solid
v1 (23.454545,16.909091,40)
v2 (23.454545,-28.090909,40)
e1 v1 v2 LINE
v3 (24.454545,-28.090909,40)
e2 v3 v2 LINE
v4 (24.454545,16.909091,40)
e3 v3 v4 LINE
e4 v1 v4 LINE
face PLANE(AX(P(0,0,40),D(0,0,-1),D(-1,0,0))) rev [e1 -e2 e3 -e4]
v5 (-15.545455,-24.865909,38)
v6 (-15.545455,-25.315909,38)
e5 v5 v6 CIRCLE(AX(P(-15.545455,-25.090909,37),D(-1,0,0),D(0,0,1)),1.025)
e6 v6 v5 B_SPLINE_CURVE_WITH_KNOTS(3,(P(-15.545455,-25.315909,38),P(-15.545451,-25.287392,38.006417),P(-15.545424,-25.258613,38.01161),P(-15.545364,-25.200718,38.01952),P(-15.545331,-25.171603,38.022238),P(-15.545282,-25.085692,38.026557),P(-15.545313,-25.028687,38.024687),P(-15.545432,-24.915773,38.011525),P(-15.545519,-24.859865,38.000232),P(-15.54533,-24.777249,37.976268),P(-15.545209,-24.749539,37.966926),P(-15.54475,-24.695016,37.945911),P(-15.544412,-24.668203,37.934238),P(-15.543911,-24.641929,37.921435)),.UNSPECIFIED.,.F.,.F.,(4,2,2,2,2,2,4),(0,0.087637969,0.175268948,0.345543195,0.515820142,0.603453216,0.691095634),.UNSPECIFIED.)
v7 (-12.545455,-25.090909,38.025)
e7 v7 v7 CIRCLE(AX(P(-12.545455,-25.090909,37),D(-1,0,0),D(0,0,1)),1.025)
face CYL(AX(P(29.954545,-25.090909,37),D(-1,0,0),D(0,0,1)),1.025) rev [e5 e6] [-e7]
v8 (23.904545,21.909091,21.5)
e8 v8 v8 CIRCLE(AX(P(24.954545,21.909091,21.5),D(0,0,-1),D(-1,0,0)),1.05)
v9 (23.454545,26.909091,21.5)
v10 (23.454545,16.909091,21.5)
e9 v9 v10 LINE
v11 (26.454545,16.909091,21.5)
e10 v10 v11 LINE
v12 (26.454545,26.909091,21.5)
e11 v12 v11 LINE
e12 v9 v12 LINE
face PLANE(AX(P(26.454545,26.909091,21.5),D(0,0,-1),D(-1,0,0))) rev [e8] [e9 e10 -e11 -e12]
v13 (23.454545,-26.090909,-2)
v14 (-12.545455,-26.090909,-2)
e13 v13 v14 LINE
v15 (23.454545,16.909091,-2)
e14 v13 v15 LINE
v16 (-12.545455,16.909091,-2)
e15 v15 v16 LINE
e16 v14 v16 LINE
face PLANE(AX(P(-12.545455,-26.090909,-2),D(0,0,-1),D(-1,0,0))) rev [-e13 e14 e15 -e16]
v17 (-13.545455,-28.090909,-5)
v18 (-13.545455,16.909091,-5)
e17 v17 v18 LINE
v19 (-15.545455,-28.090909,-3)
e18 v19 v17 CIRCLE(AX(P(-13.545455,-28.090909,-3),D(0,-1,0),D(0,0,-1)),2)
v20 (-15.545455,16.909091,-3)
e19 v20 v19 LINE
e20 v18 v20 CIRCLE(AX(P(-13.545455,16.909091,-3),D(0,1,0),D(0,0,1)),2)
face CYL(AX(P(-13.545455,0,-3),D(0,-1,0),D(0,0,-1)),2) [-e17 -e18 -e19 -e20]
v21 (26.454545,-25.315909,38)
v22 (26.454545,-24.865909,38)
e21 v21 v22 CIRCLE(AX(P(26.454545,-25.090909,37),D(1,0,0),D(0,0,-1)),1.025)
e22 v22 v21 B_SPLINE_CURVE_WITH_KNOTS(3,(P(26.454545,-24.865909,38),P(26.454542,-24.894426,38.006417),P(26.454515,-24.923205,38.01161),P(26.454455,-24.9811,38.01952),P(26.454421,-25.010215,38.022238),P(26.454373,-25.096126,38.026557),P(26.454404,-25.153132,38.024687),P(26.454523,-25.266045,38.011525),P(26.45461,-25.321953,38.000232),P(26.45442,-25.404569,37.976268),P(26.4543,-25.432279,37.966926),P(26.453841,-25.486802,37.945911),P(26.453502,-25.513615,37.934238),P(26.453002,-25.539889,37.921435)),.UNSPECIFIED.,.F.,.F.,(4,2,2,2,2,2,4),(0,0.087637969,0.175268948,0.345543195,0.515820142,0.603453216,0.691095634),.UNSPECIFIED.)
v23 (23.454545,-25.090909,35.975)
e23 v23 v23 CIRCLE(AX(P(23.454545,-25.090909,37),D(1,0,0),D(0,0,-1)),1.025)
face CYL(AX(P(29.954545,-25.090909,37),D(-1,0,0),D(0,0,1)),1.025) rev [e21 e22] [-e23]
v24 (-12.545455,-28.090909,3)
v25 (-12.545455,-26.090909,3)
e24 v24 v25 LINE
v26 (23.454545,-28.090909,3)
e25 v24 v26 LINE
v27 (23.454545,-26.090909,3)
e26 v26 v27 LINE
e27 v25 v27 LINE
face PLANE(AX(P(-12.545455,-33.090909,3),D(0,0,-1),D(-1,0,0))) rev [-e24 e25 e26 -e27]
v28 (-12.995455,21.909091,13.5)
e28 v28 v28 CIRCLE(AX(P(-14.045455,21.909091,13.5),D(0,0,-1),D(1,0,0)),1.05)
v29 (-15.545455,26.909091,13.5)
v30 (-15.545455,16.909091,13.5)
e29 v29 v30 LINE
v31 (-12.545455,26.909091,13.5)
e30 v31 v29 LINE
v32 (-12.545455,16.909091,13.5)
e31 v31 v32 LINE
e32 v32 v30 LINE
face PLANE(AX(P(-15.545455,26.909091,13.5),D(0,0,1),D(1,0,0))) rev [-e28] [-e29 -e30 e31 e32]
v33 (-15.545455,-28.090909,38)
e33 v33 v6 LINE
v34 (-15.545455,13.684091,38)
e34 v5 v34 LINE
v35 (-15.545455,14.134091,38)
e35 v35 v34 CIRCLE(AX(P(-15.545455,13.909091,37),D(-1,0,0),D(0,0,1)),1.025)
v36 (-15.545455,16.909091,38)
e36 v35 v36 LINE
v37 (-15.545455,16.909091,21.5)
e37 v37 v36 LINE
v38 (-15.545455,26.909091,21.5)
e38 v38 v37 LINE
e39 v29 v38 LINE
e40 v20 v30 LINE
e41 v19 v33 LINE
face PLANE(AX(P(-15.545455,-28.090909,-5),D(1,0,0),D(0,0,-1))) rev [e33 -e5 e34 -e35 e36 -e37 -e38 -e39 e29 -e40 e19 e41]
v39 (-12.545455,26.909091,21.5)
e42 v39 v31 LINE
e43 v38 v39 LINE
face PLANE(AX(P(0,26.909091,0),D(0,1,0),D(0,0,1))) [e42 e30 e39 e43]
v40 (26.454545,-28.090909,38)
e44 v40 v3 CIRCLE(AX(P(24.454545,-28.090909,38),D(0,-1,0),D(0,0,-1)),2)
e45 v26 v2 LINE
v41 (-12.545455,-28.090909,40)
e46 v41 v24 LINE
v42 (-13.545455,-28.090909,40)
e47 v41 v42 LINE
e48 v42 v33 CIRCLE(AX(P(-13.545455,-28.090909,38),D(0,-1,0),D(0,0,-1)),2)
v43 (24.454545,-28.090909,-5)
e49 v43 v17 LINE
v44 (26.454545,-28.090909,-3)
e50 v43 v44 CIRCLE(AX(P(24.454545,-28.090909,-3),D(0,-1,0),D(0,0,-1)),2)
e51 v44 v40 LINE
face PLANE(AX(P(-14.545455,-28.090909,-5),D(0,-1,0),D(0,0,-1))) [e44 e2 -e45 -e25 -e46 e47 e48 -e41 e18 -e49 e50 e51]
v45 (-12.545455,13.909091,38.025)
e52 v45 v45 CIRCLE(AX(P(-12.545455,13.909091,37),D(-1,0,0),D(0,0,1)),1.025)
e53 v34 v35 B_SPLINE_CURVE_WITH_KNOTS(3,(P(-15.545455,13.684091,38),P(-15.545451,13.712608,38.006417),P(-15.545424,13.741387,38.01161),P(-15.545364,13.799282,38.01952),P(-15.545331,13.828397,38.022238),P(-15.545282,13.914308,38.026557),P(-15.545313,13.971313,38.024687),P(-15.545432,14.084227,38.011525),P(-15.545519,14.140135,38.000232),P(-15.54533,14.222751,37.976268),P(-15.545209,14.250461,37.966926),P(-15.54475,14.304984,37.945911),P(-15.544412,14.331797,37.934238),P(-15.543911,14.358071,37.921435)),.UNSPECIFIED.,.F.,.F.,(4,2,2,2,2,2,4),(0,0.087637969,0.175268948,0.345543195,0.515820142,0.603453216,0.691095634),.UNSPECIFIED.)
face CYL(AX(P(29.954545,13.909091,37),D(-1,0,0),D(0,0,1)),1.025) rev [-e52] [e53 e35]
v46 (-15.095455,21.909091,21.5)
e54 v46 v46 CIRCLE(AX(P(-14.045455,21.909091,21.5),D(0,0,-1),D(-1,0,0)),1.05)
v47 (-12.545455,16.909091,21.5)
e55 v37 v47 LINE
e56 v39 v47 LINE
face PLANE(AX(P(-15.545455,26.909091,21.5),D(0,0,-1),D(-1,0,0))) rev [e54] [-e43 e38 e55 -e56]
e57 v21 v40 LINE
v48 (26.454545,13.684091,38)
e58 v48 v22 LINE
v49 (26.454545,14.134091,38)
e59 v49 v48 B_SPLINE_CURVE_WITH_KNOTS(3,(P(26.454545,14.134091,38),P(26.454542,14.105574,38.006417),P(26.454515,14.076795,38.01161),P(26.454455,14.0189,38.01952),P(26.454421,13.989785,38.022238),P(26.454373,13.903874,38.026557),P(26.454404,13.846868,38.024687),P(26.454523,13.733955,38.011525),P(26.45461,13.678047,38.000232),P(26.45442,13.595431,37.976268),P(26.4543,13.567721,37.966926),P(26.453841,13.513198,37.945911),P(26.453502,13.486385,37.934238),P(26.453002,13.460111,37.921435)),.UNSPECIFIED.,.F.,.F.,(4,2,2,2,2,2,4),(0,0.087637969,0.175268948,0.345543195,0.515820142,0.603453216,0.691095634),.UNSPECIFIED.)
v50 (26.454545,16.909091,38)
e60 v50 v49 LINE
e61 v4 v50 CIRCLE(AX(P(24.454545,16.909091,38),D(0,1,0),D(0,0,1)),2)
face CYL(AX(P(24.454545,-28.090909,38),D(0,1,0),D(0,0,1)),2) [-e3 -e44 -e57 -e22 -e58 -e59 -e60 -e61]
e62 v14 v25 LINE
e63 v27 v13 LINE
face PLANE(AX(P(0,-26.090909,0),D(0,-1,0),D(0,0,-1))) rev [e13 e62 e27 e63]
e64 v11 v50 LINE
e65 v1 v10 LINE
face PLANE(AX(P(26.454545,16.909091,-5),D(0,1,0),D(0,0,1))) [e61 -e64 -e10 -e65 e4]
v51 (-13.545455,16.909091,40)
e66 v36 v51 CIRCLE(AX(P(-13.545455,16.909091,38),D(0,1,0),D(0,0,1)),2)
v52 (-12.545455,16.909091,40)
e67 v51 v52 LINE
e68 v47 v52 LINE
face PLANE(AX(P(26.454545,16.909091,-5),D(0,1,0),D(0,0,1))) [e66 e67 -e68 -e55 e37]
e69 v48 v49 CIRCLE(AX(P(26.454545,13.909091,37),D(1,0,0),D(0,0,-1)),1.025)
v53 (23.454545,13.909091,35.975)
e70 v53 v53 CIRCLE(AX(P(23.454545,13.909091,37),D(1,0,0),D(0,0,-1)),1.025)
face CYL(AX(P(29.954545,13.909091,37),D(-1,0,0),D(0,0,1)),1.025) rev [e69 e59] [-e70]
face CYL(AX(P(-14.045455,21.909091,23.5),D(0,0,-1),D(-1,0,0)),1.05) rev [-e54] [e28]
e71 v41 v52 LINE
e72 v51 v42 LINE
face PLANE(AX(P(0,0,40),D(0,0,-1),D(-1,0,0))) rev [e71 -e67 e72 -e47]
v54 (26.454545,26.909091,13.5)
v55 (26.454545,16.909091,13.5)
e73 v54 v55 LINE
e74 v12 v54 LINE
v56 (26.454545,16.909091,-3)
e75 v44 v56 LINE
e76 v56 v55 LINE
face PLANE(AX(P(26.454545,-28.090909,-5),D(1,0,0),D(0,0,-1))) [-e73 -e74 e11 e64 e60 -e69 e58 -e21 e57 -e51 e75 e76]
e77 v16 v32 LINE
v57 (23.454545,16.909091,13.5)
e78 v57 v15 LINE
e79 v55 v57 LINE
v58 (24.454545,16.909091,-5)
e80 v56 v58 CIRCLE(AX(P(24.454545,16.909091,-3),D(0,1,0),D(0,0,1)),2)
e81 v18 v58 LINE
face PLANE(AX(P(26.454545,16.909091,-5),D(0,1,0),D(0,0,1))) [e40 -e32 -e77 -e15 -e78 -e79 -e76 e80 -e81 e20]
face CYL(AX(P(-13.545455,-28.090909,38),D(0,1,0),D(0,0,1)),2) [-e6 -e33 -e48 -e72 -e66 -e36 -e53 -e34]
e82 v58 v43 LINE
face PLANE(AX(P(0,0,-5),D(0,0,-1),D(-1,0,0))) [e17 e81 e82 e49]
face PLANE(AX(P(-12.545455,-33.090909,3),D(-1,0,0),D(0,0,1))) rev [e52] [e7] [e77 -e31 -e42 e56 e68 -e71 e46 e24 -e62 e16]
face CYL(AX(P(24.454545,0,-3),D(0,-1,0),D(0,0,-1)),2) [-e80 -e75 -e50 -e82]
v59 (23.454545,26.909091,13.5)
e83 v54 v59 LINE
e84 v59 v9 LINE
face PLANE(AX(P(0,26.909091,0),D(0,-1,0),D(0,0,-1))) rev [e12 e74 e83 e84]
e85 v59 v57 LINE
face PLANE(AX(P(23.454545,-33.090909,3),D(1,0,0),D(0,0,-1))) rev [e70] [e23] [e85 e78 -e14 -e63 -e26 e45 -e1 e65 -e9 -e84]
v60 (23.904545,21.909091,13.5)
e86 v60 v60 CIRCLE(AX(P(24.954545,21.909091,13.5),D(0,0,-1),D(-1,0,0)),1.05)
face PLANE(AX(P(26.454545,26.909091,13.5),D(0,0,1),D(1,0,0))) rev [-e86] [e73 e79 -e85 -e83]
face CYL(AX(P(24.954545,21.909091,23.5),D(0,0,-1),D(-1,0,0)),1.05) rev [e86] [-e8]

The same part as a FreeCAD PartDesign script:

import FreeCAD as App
import Part
import Sketcher
from FreeCAD import Vector


def edges_at(feature, points):
    """Names of the edges that pass closest to the given points."""
    edges = feature.Shape.Edges
    near = lambda p: min(range(len(edges)), key=lambda i: edges[i].distToShape(Part.Vertex(*p))[0])
    return sorted({f"Edge{near(p) + 1}" for p in points})


def add_polygon(sketch, points):
    """Adds a closed chain of lines whose ends are joined by coincident constraints."""
    first, n = sketch.GeometryCount, len(points)
    for a, b in zip(points, points[1:] + points[:1]):
        sketch.addGeometry(Part.LineSegment(App.Vector(*a, 0), App.Vector(*b, 0)), False)
    for i in range(n):
        sketch.addConstraint(Sketcher.Constraint("Coincident", first + i, 2, first + (i + 1) % n, 1))

doc = App.newDocument("Part")
body = doc.addObject("PartDesign::Body", "Body")

sketch1 = body.newObject("Sketcher::SketchObject", "Sketch")
sketch1.AttachmentSupport = (doc.getObject("XY_Plane"), [""])
sketch1.MapMode = "FlatFace"
add_polygon(sketch1, [(-16, -28), (26, -28), (26, 17), (-16, 17)])
sketch1.addConstraint(Sketcher.Constraint("Horizontal", 0))
sketch1.addConstraint(Sketcher.Constraint("Vertical", 1))
sketch1.addConstraint(Sketcher.Constraint("Horizontal", 2))
sketch1.addConstraint(Sketcher.Constraint("Vertical", 3))
sketch1.addConstraint(Sketcher.Constraint("DistanceX", 0, 1, 0, 2, 42.0))
sketch1.addConstraint(Sketcher.Constraint("DistanceY", 1, 1, 1, 2, 45.0))
sketch1.addConstraint(Sketcher.Constraint("DistanceY", 0, 2, -1, 1, 28.090909))
sketch1.addConstraint(Sketcher.Constraint("DistanceX", -1, 1, 0, 2, 26.454545))
pad1 = body.newObject("PartDesign::Pad", "Pad")
pad1.Profile = sketch1
pad1.Type = "TwoLengths"
pad1.Length = 40
pad1.Length2 = 5

sketch2 = body.newObject("Sketcher::SketchObject", "Sketch001")
sketch2.AttachmentSupport = (doc.getObject("XZ_Plane"), [""])
sketch2.MapMode = "FlatFace"
sketch2.AttachmentOffset = App.Placement(Vector(0, 0, -16.909091), App.Rotation())
add_polygon(sketch2, [(-13, 3), (-13, 40), (23, 40), (23, 3)])
sketch2.addConstraint(Sketcher.Constraint("Vertical", 0))
sketch2.addConstraint(Sketcher.Constraint("Horizontal", 1))
sketch2.addConstraint(Sketcher.Constraint("Vertical", 2))
sketch2.addConstraint(Sketcher.Constraint("Horizontal", 3))
sketch2.addConstraint(Sketcher.Constraint("DistanceX", 1, 1, 1, 2, 36.0))
sketch2.addConstraint(Sketcher.Constraint("DistanceY", 0, 1, 0, 2, 37.0))
sketch2.addConstraint(Sketcher.Constraint("DistanceY", -1, 1, 0, 2, 40.0))
sketch2.addConstraint(Sketcher.Constraint("DistanceX", 0, 2, -1, 1, 12.545455))
pocket1 = body.newObject("PartDesign::Pocket", "Pocket")
pocket1.Profile = sketch2
pocket1.Length = 50
pocket1.Reversed = True

sketch3 = body.newObject("Sketcher::SketchObject", "Sketch002")
sketch3.AttachmentSupport = (doc.getObject("XZ_Plane"), [""])
sketch3.MapMode = "FlatFace"
sketch3.AttachmentOffset = App.Placement(Vector(0, 0, -16.909091), App.Rotation())
add_polygon(sketch3, [(-13, -2), (-13, 3), (23, 3), (23, -2)])
sketch3.addConstraint(Sketcher.Constraint("Vertical", 0))
sketch3.addConstraint(Sketcher.Constraint("Horizontal", 1))
sketch3.addConstraint(Sketcher.Constraint("Vertical", 2))
sketch3.addConstraint(Sketcher.Constraint("Horizontal", 3))
sketch3.addConstraint(Sketcher.Constraint("DistanceX", 1, 1, 1, 2, 36.0))
sketch3.addConstraint(Sketcher.Constraint("DistanceY", 0, 1, 0, 2, 5.0))
sketch3.addConstraint(Sketcher.Constraint("DistanceY", -1, 1, 0, 2, 3.0))
sketch3.addConstraint(Sketcher.Constraint("DistanceX", 0, 2, -1, 1, 12.545455))
pocket2 = body.newObject("PartDesign::Pocket", "Pocket001")
pocket2.Profile = sketch3
pocket2.Length = 43
pocket2.Reversed = True

sketch4 = body.newObject("Sketcher::SketchObject", "Sketch003")
sketch4.AttachmentSupport = (doc.getObject("YZ_Plane"), [""])
sketch4.MapMode = "FlatFace"
sketch4.AttachmentOffset = App.Placement(Vector(0, 0, -15.545455), App.Rotation())
sketch4.addGeometry(Part.Circle(Vector(-25.1, 37, 0), Vector(0, 0, 1), 1), False)
sketch4.addGeometry(Part.Circle(Vector(13.9, 37, 0), Vector(0, 0, 1), 1), False)
sketch4.addConstraint(Sketcher.Constraint("Equal", 0, 1))
sketch4.addConstraint(Sketcher.Constraint("Horizontal", 0, 3, 1, 3))
sketch4.addConstraint(Sketcher.Constraint("Diameter", 0, 2.05))
sketch4.addConstraint(Sketcher.Constraint("DistanceY", -1, 1, 0, 3, 37.0))
sketch4.addConstraint(Sketcher.Constraint("DistanceX", 0, 3, 1, 3, 39.0))
sketch4.addConstraint(Sketcher.Constraint("DistanceX", 0, 3, -1, 1, 25.090909))
pocket3 = body.newObject("PartDesign::Pocket", "Pocket002")
pocket3.Profile = sketch4
pocket3.Length = 45.5
pocket3.Reversed = True

sketch5 = body.newObject("Sketcher::SketchObject", "Sketch004")
sketch5.AttachmentSupport = (doc.getObject("XZ_Plane"), [""])
sketch5.MapMode = "FlatFace"
sketch5.AttachmentOffset = App.Placement(Vector(0, 0, -16.909091), App.Rotation())
add_polygon(sketch5, [(-15.5, 13.5), (-15.5, 21.5), (-12.5, 21.5), (-12.5, 13.5)])
add_polygon(sketch5, [(23.5, 13.5), (23.5, 21.5), (26.5, 21.5), (26.5, 13.5)])
sketch5.addConstraint(Sketcher.Constraint("Vertical", 0))
sketch5.addConstraint(Sketcher.Constraint("Horizontal", 1))
sketch5.addConstraint(Sketcher.Constraint("Vertical", 2))
sketch5.addConstraint(Sketcher.Constraint("Horizontal", 3))
sketch5.addConstraint(Sketcher.Constraint("Vertical", 4))
sketch5.addConstraint(Sketcher.Constraint("Horizontal", 5))
sketch5.addConstraint(Sketcher.Constraint("Vertical", 6))
sketch5.addConstraint(Sketcher.Constraint("Horizontal", 7))
sketch5.addConstraint(Sketcher.Constraint("Horizontal", 1, 2, 4, 2))
sketch5.addConstraint(Sketcher.Constraint("Horizontal", 3, 2, 6, 2))
sketch5.addConstraint(Sketcher.Constraint("Equal", 3, 5))
sketch5.addConstraint(Sketcher.Constraint("DistanceX", 1, 1, 1, 2, 3.0))
sketch5.addConstraint(Sketcher.Constraint("DistanceY", 0, 1, 0, 2, 8.0))
sketch5.addConstraint(Sketcher.Constraint("DistanceX", 1, 2, 4, 2, 36.0))
sketch5.addConstraint(Sketcher.Constraint("DistanceY", -1, 1, 0, 2, 21.5))
sketch5.addConstraint(Sketcher.Constraint("DistanceX", 0, 2, -1, 1, 15.545455))
pad2 = body.newObject("PartDesign::Pad", "Pad001")
pad2.Profile = sketch5
pad2.Length = 10
pad2.Reversed = True

sketch6 = body.newObject("Sketcher::SketchObject", "Sketch005")
sketch6.AttachmentSupport = (doc.getObject("XY_Plane"), [""])
sketch6.MapMode = "FlatFace"
sketch6.AttachmentOffset = App.Placement(Vector(0, 0, 13.5), App.Rotation())
sketch6.addGeometry(Part.Circle(Vector(25, 21.9, 0), Vector(0, 0, 1), 1.1), False)
sketch6.addGeometry(Part.Circle(Vector(-14, 21.9, 0), Vector(0, 0, 1), 1.1), False)
sketch6.addConstraint(Sketcher.Constraint("Equal", 0, 1))
sketch6.addConstraint(Sketcher.Constraint("Horizontal", 0, 3, 1, 3))
sketch6.addConstraint(Sketcher.Constraint("Diameter", 0, 2.1))
sketch6.addConstraint(Sketcher.Constraint("DistanceX", 1, 3, 0, 3, 39.0))
sketch6.addConstraint(Sketcher.Constraint("DistanceY", -1, 1, 0, 3, 21.909091))
sketch6.addConstraint(Sketcher.Constraint("DistanceX", -1, 1, 0, 3, 24.954545))
pocket4 = body.newObject("PartDesign::Pocket", "Pocket003")
pocket4.Profile = sketch6
pocket4.Length = 10
pocket4.Reversed = True
doc.recompute()

fillet = body.newObject("PartDesign::Fillet", "Fillet")
fillet.Base = (pocket4, edges_at(pocket4, [(26.455, -5.591, -5)]))
fillet.Radius = 2
doc.recompute()

fillet2 = body.newObject("PartDesign::Fillet", "Fillet001")
fillet2.Base = (fillet, edges_at(fillet, [(-15.545, -5.591, -5)]))
fillet2.Radius = 2
doc.recompute()

fillet3 = body.newObject("PartDesign::Fillet", "Fillet002")
fillet3.Base = (fillet2, edges_at(fillet2, [(26.455, -5.591, 40)]))
fillet3.Radius = 2
doc.recompute()

fillet4 = body.newObject("PartDesign::Fillet", "Fillet003")
fillet4.Base = (fillet3, edges_at(fillet3, [(-15.545, -5.591, 40)]))
fillet4.Radius = 2

doc.recompute()
